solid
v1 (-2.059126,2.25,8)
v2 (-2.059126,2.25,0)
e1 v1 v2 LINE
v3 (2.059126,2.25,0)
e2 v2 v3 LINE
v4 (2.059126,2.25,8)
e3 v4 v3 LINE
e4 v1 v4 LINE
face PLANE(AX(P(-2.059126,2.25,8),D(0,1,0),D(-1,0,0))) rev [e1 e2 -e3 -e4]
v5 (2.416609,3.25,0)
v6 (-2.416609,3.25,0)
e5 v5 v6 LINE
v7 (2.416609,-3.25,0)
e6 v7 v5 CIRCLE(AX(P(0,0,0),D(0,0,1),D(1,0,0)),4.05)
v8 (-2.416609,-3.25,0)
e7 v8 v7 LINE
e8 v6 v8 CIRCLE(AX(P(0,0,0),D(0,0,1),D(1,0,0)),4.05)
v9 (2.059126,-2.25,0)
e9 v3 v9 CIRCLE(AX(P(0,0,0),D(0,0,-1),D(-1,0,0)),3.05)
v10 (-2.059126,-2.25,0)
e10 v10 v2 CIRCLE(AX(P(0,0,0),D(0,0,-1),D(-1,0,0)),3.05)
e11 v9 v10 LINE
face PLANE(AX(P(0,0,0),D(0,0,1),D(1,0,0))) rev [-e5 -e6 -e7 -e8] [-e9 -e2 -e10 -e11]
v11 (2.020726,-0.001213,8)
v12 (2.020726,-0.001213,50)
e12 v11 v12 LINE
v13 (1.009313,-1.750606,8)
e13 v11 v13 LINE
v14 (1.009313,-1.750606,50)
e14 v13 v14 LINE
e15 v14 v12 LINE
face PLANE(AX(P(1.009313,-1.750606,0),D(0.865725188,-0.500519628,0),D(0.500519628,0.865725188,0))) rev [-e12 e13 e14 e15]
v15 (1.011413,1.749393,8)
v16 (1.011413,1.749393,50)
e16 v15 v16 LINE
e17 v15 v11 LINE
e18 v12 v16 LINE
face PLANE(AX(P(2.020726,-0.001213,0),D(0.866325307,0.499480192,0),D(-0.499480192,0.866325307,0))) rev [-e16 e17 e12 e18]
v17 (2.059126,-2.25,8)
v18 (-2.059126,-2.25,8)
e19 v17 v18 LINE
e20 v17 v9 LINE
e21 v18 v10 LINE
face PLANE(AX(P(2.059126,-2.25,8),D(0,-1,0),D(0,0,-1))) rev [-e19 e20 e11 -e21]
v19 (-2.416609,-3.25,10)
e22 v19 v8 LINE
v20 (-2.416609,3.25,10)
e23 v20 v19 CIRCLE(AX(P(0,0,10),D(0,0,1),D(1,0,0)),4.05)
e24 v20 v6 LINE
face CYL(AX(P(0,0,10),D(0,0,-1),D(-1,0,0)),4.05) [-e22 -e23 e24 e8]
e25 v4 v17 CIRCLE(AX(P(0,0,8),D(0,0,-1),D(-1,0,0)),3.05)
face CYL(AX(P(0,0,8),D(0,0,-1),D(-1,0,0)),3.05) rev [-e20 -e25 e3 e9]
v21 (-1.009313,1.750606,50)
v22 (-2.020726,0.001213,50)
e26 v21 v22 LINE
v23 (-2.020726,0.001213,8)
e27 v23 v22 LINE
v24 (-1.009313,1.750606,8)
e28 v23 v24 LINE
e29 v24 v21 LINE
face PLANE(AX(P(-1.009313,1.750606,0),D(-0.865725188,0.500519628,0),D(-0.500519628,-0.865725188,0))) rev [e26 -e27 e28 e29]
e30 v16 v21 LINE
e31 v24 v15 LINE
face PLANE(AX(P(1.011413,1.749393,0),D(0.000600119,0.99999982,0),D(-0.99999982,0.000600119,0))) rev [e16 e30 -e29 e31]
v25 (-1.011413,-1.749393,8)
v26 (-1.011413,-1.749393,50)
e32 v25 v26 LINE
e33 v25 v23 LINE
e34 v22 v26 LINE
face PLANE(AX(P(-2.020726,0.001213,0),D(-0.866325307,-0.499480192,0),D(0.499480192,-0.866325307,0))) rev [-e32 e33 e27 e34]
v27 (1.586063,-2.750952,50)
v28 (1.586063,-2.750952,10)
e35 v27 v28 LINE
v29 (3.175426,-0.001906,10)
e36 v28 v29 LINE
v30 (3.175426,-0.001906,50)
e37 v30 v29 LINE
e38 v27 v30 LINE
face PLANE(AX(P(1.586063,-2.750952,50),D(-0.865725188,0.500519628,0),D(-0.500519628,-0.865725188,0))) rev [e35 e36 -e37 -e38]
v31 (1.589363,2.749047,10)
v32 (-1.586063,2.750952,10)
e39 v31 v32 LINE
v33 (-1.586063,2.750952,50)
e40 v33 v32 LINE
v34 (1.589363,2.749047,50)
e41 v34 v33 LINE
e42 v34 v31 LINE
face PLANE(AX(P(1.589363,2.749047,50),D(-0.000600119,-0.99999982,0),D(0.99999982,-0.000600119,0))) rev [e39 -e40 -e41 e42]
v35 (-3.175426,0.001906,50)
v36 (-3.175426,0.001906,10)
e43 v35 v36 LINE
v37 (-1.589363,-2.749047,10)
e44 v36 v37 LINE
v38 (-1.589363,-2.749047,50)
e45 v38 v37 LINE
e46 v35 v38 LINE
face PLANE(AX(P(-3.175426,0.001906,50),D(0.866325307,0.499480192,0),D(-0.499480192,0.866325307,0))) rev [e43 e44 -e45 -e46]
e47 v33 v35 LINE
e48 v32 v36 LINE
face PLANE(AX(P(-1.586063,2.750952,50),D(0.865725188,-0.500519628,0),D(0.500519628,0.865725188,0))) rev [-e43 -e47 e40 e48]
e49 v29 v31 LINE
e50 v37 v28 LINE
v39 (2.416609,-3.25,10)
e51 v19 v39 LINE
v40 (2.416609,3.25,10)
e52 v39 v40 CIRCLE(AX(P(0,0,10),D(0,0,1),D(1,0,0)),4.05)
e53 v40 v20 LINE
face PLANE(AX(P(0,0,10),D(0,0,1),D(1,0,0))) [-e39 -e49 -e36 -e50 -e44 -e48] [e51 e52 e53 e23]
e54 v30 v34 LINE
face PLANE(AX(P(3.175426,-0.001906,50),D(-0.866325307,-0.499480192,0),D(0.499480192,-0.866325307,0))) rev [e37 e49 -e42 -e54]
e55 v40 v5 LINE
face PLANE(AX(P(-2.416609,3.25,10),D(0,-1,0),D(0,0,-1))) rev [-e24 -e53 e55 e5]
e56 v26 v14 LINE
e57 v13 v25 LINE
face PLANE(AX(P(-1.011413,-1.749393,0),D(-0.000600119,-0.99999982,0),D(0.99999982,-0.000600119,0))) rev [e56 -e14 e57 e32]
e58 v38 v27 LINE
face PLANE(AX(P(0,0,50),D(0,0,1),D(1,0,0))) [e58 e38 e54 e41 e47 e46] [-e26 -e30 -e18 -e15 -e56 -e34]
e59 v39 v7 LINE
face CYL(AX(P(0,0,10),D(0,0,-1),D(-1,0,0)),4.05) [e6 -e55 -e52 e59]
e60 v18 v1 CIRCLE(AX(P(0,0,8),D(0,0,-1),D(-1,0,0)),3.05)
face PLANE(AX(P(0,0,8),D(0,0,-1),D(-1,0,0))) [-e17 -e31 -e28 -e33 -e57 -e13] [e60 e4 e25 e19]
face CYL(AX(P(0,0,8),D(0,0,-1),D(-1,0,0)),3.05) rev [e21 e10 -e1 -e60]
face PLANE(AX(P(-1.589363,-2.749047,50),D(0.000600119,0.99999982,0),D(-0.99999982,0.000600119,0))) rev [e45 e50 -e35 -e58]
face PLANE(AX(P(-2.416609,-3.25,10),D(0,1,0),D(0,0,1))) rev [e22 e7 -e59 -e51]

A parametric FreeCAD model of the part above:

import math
import FreeCAD as App
import Part
import Sketcher
from FreeCAD import Vector

doc = App.newDocument("Part")
body = doc.addObject("PartDesign::Body", "Body")

# Sketch on XY plane
sketch1 = body.newObject("Sketcher::SketchObject", "Sketch")
sketch1.AttachmentSupport = (doc.getObject("XY_Plane"), [""])
sketch1.MapMode = "FlatFace"
sketch1.addGeometry([
    Part.LineSegment(Vector(2.4, 3.2, 0), Vector(-2.4, 3.2, 0)),
    Part.ArcOfCircle(Part.Circle(Vector(0, 0, 0), Vector(0, 0, 1), 4), math.radians(127), math.radians(233)),
    Part.LineSegment(Vector(-2.4, -3.2, 0), Vector(2.4, -3.2, 0)),
    Part.ArcOfCircle(Part.Circle(Vector(0, 0, 0), Vector(0, 0, 1), 4), math.radians(-53), math.radians(53)),
], False)
sketch1.addConstraint([
    Sketcher.Constraint("Coincident", 0, 2, 1, 1),
    Sketcher.Constraint("Coincident", 1, 2, 2, 1),
    Sketcher.Constraint("Coincident", 2, 2, 3, 1),
    Sketcher.Constraint("Coincident", 3, 2, 0, 1),
    Sketcher.Constraint("Horizontal", 0),
    Sketcher.Constraint("Horizontal", 2),
    Sketcher.Constraint("Coincident", 1, 3, -1, 1),
    Sketcher.Constraint("Coincident", 3, 3, -1, 1),
    Sketcher.Constraint("Equal", 1, 3),
    Sketcher.Constraint("Vertical", 0, 2, 1, 2),
    Sketcher.Constraint("Radius", 1, 4.05),
    Sketcher.Constraint("DistanceY", 1, 2, 0, 2, 6.5),
])
pad1 = body.newObject("PartDesign::Pad", "Pad")
pad1.Profile = sketch1
pad1.Length = 10

# Sketch on XY plane
sketch2 = body.newObject("Sketcher::SketchObject", "Sketch001")
sketch2.AttachmentSupport = (doc.getObject("XY_Plane"), [""])
sketch2.MapMode = "FlatFace"
sketch2.addGeometry([
    Part.LineSegment(Vector(-2.1, 2.2, 0), Vector(2.1, 2.2, 0)),
    Part.ArcOfCircle(Part.Circle(Vector(0, 0, 0), Vector(0, 0, 1), 3), math.radians(-48), math.radians(48)),
    Part.LineSegment(Vector(2.1, -2.2, 0), Vector(-2.1, -2.2, 0)),
    Part.ArcOfCircle(Part.Circle(Vector(0, 0, 0), Vector(0, 0, 1), 3), math.radians(132), math.radians(228)),
], False)
sketch2.addConstraint([
    Sketcher.Constraint("Coincident", 0, 2, 1, 2),
    Sketcher.Constraint("Coincident", 1, 1, 2, 1),
    Sketcher.Constraint("Coincident", 2, 2, 3, 2),
    Sketcher.Constraint("Coincident", 3, 1, 0, 1),
    Sketcher.Constraint("Horizontal", 0),
    Sketcher.Constraint("Horizontal", 2),
    Sketcher.Constraint("Coincident", 1, 3, -1, 1),
    Sketcher.Constraint("Coincident", 3, 3, -1, 1),
    Sketcher.Constraint("Equal", 1, 3),
    Sketcher.Constraint("Vertical", 0, 2, 1, 1),
    Sketcher.Constraint("Radius", 1, 3.05),
    Sketcher.Constraint("DistanceY", 1, 1, 0, 2, 4.5),
])
pocket1 = body.newObject("PartDesign::Pocket", "Pocket")
pocket1.Profile = sketch2
pocket1.Length = 8
pocket1.Reversed = True

# Sketch on XY plane
sketch3 = body.newObject("Sketcher::SketchObject", "Sketch002")
sketch3.AttachmentSupport = (doc.getObject("XY_Plane"), [""])
sketch3.MapMode = "FlatFace"
sketch3.AttachmentOffset = App.Placement(Vector(0, 0, 10), App.Rotation())
sketch3.addGeometry([
    Part.LineSegment(Vector(1.6, -2.8, 0), Vector(3.2, 0, 0)),  # 0
    Part.LineSegment(Vector(3.2, 0, 0), Vector(1.6, 2.7, 0)),  # 1
    Part.LineSegment(Vector(1.6, 2.7, 0), Vector(-1.6, 2.8, 0)),  # 2
    Part.LineSegment(Vector(-1.6, 2.8, 0), Vector(-3.2, 0, 0)),  # 3
    Part.LineSegment(Vector(-3.2, 0, 0), Vector(-1.6, -2.7, 0)),  # 4
    Part.LineSegment(Vector(-1.6, -2.7, 0), Vector(1.6, -2.8, 0)),  # 5
], False)
sketch3.addConstraint([
    Sketcher.Constraint("Coincident", 0, 2, 1, 1),
    Sketcher.Constraint("Coincident", 1, 2, 2, 1),
    Sketcher.Constraint("Coincident", 2, 2, 3, 1),
    Sketcher.Constraint("Coincident", 3, 2, 4, 1),
    Sketcher.Constraint("Coincident", 4, 2, 5, 1),
    Sketcher.Constraint("Coincident", 5, 2, 0, 1),
    Sketcher.Constraint("Symmetric", 0, 2, 3, 2, -1, 1),
    Sketcher.Constraint("Symmetric", 1, 2, 4, 2, -1, 1),
    Sketcher.Constraint("Symmetric", 2, 2, 5, 2, -1, 1),
    Sketcher.Constraint("Equal", 0, 1),
    Sketcher.Constraint("Equal", 1, 2),
    Sketcher.Constraint("DistanceY", 4, 2, 2, 2, 5.499999),
    Sketcher.Constraint("DistanceX", 4, 2, 2, 2, 0.003301),
    Sketcher.Constraint("DistanceX", 2, 2, 0, 2, 4.761489),
    Sketcher.Constraint("DistanceY", 3, 2, 1, 2, 2.747141),
])
pad2 = body.newObject("PartDesign::Pad", "Pad001")
pad2.Profile = sketch3
pad2.Length = 40

# Sketch on XY plane
sketch4 = body.newObject("Sketcher::SketchObject", "Sketch003")
sketch4.AttachmentSupport = (doc.getObject("XY_Plane"), [""])
sketch4.MapMode = "FlatFace"
sketch4.AttachmentOffset = App.Placement(Vector(0, 0, 50), App.Rotation())
sketch4.addGeometry([
    Part.LineSegment(Vector(-1, -1.7, 0), Vector(1, -1.8, 0)),  # 0
    Part.LineSegment(Vector(1, -1.8, 0), Vector(2, 0, 0)),  # 1
    Part.LineSegment(Vector(2, 0, 0), Vector(1, 1.7, 0)),  # 2
    Part.LineSegment(Vector(1, 1.7, 0), Vector(-1, 1.8, 0)),  # 3
    Part.LineSegment(Vector(-1, 1.8, 0), Vector(-2, 0, 0)),  # 4
    Part.LineSegment(Vector(-2, 0, 0), Vector(-1, -1.7, 0)),  # 5
], False)
sketch4.addConstraint([
    Sketcher.Constraint("Coincident", 0, 2, 1, 1),
    Sketcher.Constraint("Coincident", 1, 2, 2, 1),
    Sketcher.Constraint("Coincident", 2, 2, 3, 1),
    Sketcher.Constraint("Coincident", 3, 2, 4, 1),
    Sketcher.Constraint("Coincident", 4, 2, 5, 1),
    Sketcher.Constraint("Coincident", 5, 2, 0, 1),
    Sketcher.Constraint("Symmetric", 0, 2, 3, 2, -1, 1),
    Sketcher.Constraint("Symmetric", 1, 2, 4, 2, -1, 1),
    Sketcher.Constraint("Symmetric", 2, 2, 5, 2, -1, 1),
    Sketcher.Constraint("Equal", 0, 1),
    Sketcher.Constraint("Equal", 1, 2),
    Sketcher.Constraint("DistanceY", 0, 2, 2, 2, 3.499999),
    Sketcher.Constraint("DistanceX", 0, 2, 2, 2, 0.0021),
    Sketcher.Constraint("DistanceX", 3, 2, 1, 2, 3.030038),
    Sketcher.Constraint("DistanceY", 1, 2, 3, 2, 1.751819),
])
pocket2 = body.newObject("PartDesign::Pocket", "Pocket001")
pocket2.Profile = sketch4
pocket2.Type = "ThroughAll"
pocket2.Midplane = True

doc.recompute()
